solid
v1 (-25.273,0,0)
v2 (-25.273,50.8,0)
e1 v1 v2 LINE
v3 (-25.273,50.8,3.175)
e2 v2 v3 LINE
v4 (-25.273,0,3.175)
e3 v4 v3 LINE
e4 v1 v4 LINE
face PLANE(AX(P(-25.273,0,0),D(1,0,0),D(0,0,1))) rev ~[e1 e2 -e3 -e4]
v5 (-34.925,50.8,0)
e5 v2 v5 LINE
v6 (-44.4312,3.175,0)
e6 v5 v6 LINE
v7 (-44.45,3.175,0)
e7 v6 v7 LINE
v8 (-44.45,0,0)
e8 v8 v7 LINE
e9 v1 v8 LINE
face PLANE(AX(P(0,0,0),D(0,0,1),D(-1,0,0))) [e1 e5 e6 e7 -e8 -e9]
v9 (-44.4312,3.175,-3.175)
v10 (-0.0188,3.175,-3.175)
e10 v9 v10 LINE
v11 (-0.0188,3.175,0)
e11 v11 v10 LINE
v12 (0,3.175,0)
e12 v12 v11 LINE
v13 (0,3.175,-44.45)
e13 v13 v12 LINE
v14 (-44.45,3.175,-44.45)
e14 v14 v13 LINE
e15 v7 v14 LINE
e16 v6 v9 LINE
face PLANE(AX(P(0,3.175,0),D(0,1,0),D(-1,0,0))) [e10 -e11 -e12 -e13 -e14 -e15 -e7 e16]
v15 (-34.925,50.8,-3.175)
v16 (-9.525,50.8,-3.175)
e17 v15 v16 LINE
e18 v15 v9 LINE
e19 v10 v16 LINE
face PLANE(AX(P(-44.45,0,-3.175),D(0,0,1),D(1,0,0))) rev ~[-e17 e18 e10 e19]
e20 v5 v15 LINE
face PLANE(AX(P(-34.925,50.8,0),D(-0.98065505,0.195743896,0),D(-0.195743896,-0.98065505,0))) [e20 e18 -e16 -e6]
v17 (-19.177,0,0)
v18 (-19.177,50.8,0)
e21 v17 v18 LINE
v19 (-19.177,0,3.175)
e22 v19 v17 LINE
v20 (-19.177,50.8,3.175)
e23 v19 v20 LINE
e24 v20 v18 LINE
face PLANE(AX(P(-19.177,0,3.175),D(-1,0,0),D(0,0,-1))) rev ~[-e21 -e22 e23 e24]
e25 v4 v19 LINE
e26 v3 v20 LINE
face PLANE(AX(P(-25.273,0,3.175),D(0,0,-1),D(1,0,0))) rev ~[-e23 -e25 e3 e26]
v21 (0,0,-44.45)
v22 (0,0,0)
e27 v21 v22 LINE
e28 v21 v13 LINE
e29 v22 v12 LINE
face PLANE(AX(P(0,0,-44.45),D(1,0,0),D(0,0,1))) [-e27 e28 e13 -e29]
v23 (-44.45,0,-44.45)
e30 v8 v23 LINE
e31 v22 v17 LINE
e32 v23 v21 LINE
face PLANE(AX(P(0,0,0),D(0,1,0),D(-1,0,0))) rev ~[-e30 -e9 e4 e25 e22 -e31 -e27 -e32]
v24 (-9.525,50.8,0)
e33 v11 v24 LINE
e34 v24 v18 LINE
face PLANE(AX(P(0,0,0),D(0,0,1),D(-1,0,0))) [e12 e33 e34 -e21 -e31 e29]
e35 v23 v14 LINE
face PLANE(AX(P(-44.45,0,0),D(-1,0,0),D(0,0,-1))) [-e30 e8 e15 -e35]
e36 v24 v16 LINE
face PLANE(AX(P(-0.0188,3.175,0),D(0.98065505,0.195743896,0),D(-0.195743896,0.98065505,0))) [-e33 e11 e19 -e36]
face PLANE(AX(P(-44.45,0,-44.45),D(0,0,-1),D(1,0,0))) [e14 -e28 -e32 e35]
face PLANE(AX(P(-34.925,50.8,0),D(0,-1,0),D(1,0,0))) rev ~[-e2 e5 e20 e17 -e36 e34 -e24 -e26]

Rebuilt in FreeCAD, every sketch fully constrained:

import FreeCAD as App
import Part
import Sketcher

V = App.Vector
Q = App.Units.Quantity


def add_polygon(sketch, points):
    """Adds a closed chain of lines whose ends are joined by coincident constraints."""
    first, n = sketch.GeometryCount, len(points)
    for a, b in zip(points, points[1:] + points[:1]):
        sketch.addGeometry(Part.LineSegment(App.Vector(*a, 0), App.Vector(*b, 0)), False)
    for i in range(n):
        sketch.addConstraint(Sketcher.Constraint("Coincident", first + i, 2, first + (i + 1) % n, 1))

doc = App.newDocument("Part")
body = doc.addObject("PartDesign::Body", "Body")

# Sketch on XZ plane
sketch1 = body.newObject("Sketcher::SketchObject", "Sketch")
sketch1.AttachmentSupport = (doc.getObject("XZ_Plane"), [""])
sketch1.MapMode = "FlatFace"
add_polygon(sketch1, [(-44, 0), (0, 0), (0, -44), (-44, -44)])  # lines 0-3
sketch1.addConstraint(Sketcher.Constraint("Horizontal", 0))
sketch1.addConstraint(Sketcher.Constraint("Vertical", 1))
sketch1.addConstraint(Sketcher.Constraint("Horizontal", 2))
sketch1.addConstraint(Sketcher.Constraint("Vertical", 3))
sketch1.addConstraint(Sketcher.Constraint("Coincident", 0, 2, -1, 1))
sketch1.addConstraint(Sketcher.Constraint("Equal", 2, 1))
sketch1.addConstraint(Sketcher.Constraint("DistanceX", 0, 1, 0, 2, Q("1.75 in")))
pad1 = body.newObject("PartDesign::Pad", "Pad")
pad1.Profile = sketch1
pad1.Length = Q("0.125 in")
pad1.Reversed = True

# Sketch on XY plane
sketch2 = body.newObject("Sketcher::SketchObject", "Sketch001")
sketch2.AttachmentSupport = (doc.getObject("XY_Plane"), [""])
sketch2.MapMode = "FlatFace"
add_polygon(sketch2, [(-10, 51), (-35, 51), (-44, 3), (0, 3)])  # lines 0-3
sketch2.addConstraint(Sketcher.Constraint("Horizontal", 0))
sketch2.addConstraint(Sketcher.Constraint("Horizontal", 2))
sketch2.addConstraint(Sketcher.Constraint("Equal", 1, 3))
sketch2.addConstraint(Sketcher.Constraint("DistanceX", 0, 2, 0, 1, Q("1 in")))
sketch2.addConstraint(Sketcher.Constraint("DistanceY", -1, 1, 0, 2, Q("2 in")))
sketch2.addConstraint(Sketcher.Constraint("DistanceX", 0, 2, -1, 1, Q("1.375 in")))
sketch2.addConstraint(Sketcher.Constraint("DistanceY", -1, 1, 1, 2, Q("0.125 in")))
sketch2.addConstraint(Sketcher.Constraint("DistanceX", 2, 1, 2, 2, 44.4124))
pad2 = body.newObject("PartDesign::Pad", "Pad001")
pad2.Profile = sketch2
pad2.Length = Q("0.125 in")
pad2.Reversed = True

# Sketch on XZ plane
sketch3 = body.newObject("Sketcher::SketchObject", "Sketch002")
sketch3.AttachmentSupport = (doc.getObject("XZ_Plane"), [""])
sketch3.MapMode = "FlatFace"
add_polygon(sketch3, [(-25.3, 3.2), (-25.3, 0), (-19.2, 0), (-19.2, 3.2)])  # lines 0-3
sketch3.addConstraint(Sketcher.Constraint("Vertical", 0))
sketch3.addConstraint(Sketcher.Constraint("Horizontal", 1))
sketch3.addConstraint(Sketcher.Constraint("Vertical", 2))
sketch3.addConstraint(Sketcher.Constraint("Horizontal", 3))
sketch3.addConstraint(Sketcher.Constraint("PointOnObject", 0, 2, -1))
sketch3.addConstraint(Sketcher.Constraint("DistanceX", 1, 1, 1, 2, Q("0.24 in")))
sketch3.addConstraint(Sketcher.Constraint("DistanceY", 0, 2, 0, 1, Q("0.125 in")))
sketch3.addConstraint(Sketcher.Constraint("DistanceX", 1, 2, -1, 1, Q("0.755 in")))
pad3 = body.newObject("PartDesign::Pad", "Pad002")
pad3.Profile = sketch3
pad3.Length = Q("2 in")
pad3.Reversed = True

doc.recompute()
